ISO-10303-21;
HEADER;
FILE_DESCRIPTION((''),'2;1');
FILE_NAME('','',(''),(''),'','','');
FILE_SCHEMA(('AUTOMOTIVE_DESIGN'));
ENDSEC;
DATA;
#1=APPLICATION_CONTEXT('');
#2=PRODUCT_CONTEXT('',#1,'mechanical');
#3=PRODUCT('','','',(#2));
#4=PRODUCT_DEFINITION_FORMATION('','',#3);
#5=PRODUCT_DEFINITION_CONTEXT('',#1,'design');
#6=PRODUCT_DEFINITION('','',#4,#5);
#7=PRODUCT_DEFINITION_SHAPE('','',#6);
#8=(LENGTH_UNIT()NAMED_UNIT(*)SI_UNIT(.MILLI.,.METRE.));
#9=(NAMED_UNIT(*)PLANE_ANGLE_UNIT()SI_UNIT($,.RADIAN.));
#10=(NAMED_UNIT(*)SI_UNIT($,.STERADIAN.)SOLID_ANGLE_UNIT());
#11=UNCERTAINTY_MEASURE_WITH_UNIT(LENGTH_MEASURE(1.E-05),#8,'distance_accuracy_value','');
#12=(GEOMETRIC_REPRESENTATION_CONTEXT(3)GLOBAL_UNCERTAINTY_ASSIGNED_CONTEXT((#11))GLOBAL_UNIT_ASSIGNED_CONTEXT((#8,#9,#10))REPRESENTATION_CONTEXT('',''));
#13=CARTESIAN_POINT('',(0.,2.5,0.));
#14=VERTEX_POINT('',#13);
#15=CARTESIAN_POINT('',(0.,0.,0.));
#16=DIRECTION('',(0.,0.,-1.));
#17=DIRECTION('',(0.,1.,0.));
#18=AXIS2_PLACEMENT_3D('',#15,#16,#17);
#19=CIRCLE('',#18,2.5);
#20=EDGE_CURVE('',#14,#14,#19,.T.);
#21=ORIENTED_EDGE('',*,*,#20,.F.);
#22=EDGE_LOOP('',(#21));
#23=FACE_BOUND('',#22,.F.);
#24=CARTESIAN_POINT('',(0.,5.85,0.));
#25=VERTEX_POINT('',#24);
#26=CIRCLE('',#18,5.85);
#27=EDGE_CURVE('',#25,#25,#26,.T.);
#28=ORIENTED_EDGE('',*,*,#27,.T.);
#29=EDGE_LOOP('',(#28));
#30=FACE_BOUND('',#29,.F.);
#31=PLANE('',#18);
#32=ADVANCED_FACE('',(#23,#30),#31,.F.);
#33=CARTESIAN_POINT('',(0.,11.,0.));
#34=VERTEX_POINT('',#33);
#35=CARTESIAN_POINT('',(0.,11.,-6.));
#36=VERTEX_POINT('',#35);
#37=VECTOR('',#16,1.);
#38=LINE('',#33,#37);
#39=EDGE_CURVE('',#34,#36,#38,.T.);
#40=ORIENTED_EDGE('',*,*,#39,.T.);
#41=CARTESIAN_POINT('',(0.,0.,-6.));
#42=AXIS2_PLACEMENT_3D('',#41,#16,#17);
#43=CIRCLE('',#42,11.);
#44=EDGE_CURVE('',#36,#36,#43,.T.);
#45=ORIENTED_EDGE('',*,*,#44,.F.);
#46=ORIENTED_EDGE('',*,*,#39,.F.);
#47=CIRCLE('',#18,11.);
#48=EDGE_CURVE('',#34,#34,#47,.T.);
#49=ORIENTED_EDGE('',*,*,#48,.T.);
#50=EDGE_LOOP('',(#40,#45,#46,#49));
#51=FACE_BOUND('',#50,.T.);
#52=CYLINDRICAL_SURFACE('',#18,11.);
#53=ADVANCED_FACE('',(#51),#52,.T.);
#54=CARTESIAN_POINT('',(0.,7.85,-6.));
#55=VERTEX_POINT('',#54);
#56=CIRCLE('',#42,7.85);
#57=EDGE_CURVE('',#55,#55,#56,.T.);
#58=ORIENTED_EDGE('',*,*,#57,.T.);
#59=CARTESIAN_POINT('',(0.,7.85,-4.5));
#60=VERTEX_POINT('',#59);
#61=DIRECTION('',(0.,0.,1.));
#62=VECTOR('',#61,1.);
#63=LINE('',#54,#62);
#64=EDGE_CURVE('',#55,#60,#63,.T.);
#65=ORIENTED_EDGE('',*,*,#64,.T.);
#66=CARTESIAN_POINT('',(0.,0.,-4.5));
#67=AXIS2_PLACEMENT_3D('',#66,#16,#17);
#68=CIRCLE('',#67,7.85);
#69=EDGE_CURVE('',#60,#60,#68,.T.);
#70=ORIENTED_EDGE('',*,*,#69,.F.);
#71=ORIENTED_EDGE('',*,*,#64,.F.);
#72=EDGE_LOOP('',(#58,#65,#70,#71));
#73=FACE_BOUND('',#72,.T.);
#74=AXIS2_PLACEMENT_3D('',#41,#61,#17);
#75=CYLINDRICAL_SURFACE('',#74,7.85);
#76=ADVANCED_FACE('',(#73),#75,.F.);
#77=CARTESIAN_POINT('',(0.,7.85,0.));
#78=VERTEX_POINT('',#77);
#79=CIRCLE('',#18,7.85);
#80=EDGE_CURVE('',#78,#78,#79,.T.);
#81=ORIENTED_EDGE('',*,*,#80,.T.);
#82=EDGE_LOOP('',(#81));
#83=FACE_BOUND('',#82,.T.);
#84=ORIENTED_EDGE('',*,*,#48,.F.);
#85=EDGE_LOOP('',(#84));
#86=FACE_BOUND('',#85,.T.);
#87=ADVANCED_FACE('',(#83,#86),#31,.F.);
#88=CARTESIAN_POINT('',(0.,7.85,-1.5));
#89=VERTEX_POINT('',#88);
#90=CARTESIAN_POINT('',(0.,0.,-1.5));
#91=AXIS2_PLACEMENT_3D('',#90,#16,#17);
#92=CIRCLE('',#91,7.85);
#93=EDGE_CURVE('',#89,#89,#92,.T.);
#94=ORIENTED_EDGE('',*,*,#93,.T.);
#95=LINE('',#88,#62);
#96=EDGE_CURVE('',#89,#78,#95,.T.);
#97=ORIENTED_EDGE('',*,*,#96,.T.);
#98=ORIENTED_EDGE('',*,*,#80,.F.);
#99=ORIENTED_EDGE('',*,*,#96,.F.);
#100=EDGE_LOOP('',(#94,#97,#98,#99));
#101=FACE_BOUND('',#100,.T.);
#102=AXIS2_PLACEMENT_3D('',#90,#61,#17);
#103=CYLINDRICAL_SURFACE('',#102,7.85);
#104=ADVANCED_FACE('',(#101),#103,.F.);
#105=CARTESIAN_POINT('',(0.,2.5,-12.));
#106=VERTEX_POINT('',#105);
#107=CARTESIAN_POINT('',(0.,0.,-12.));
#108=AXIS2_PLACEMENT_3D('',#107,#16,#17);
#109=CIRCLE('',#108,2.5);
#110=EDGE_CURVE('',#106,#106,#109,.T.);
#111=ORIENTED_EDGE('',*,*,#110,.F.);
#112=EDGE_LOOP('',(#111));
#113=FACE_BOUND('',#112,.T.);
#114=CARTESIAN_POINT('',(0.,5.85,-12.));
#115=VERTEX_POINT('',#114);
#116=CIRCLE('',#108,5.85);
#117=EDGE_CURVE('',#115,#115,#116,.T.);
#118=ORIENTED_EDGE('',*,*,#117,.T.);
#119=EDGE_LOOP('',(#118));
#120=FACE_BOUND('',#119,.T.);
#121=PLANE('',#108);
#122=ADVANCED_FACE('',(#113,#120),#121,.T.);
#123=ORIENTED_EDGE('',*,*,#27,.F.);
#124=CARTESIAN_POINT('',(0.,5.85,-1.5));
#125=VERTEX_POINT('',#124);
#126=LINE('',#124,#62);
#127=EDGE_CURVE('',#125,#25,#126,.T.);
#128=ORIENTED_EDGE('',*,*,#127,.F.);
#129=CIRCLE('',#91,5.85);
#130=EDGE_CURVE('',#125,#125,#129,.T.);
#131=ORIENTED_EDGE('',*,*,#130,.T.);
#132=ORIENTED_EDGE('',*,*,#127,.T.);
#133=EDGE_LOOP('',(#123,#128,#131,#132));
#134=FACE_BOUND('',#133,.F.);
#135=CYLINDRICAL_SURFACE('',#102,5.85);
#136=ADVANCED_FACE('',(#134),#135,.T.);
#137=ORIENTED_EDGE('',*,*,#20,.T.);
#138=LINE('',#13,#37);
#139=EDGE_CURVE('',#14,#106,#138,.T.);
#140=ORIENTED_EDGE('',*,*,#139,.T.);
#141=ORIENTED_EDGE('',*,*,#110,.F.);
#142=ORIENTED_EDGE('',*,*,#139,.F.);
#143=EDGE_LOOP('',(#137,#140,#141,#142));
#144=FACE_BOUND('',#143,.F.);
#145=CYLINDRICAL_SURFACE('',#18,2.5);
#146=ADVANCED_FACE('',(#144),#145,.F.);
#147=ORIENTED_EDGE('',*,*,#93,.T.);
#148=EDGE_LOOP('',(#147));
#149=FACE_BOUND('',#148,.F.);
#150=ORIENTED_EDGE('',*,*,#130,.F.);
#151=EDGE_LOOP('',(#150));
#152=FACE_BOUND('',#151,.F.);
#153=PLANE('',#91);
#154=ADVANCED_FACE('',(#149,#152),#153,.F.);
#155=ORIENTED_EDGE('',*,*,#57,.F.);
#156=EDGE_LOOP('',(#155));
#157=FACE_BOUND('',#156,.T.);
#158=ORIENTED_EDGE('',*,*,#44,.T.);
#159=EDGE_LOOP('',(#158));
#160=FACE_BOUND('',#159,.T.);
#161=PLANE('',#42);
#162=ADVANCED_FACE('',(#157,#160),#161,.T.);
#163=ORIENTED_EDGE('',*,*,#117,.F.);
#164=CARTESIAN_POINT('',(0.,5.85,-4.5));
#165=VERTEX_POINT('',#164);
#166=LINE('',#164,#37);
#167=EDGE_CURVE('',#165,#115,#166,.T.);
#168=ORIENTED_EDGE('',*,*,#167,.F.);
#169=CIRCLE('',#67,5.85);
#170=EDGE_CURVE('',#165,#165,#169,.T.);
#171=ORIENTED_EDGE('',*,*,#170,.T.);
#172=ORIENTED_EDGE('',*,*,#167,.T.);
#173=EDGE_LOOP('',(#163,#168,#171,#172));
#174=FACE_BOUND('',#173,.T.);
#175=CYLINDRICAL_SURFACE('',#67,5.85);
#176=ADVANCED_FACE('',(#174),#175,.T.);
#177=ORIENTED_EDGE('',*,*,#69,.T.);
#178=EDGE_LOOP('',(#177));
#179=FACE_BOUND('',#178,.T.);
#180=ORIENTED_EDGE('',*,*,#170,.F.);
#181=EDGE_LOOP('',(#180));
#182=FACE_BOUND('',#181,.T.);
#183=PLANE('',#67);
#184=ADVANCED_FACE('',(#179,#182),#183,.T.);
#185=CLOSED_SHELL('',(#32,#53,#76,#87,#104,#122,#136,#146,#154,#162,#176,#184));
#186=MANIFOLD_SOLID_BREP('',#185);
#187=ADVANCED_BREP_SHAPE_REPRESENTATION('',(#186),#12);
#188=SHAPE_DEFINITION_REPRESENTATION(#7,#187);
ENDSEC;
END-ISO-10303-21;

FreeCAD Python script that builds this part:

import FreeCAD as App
import Part
import Sketcher
Q = App.Units.Quantity


def add_polygon(sketch, points):
    """Adds a closed chain of lines whose ends are joined by coincident constraints."""
    first, n = sketch.GeometryCount, len(points)
    for a, b in zip(points, points[1:] + points[:1]):
        sketch.addGeometry(Part.LineSegment(App.Vector(*a, 0), App.Vector(*b, 0)), False)
    for i in range(n):
        sketch.addConstraint(Sketcher.Constraint("Coincident", first + i, 2, first + (i + 1) % n, 1))

doc = App.newDocument("Part")
body = doc.addObject("PartDesign::Body", "Body")

# Sketch on YZ plane
sketch1 = body.newObject("Sketcher::SketchObject", "Sketch")
sketch1.AttachmentSupport = (doc.getObject("YZ_Plane"), [""])
sketch1.MapMode = "FlatFace"
add_polygon(sketch1, [(7.8, 0), (7.8, -1.5), (5.8, -1.5), (5.8, 0), (2.5, 0), (2.5, -12), (5.8, -12), (5.8, -4.5), (7.8, -4.5), (7.8, -6), (11, -6), (11, 0)])  # lines 0-11
sketch1.addConstraint(Sketcher.Constraint("Vertical", 0))
sketch1.addConstraint(Sketcher.Constraint("Horizontal", 1))
sketch1.addConstraint(Sketcher.Constraint("Vertical", 2))
sketch1.addConstraint(Sketcher.Constraint("Horizontal", 3))
sketch1.addConstraint(Sketcher.Constraint("Vertical", 4))
sketch1.addConstraint(Sketcher.Constraint("Horizontal", 5))
sketch1.addConstraint(Sketcher.Constraint("Vertical", 6))
sketch1.addConstraint(Sketcher.Constraint("Horizontal", 7))
sketch1.addConstraint(Sketcher.Constraint("Vertical", 8))
sketch1.addConstraint(Sketcher.Constraint("Horizontal", 9))
sketch1.addConstraint(Sketcher.Constraint("Vertical", 10))
sketch1.addConstraint(Sketcher.Constraint("Horizontal", 11))
sketch1.addConstraint(Sketcher.Constraint("PointOnObject", 2, 2, -1))
sketch1.addConstraint(Sketcher.Constraint("PointOnObject", 10, 2, -1))
sketch1.addConstraint(Sketcher.Constraint("Vertical", 2, 2, 5, 2))
sketch1.addConstraint(Sketcher.Constraint("Vertical", 0, 2, 7, 2))
sketch1.addConstraint(Sketcher.Constraint("Equal", 2, 8))
sketch1.addConstraint(Sketcher.Constraint("DistanceX", 1, 2, 1, 1, Q("2 mm")))
sketch1.addConstraint(Sketcher.Constraint("DistanceY", 4, 2, 4, 1, Q("12 mm")))
sketch1.addConstraint(Sketcher.Constraint("DistanceY", 10, 1, 10, 2, Q("6 mm")))
sketch1.addConstraint(Sketcher.Constraint("DistanceY", 6, 2, 1, 2, Q("3 mm")))
sketch1.addConstraint(Sketcher.Constraint("DistanceX", -1, 1, 9, 2, Q("11 mm")))
sketch1.addConstraint(Sketcher.Constraint("DistanceX", 3, 2, 3, 1, Q("3.35 mm")))
sketch1.addConstraint(Sketcher.Constraint("DistanceX", 9, 1, 9, 2, Q("3.15 mm")))
revolution = body.newObject("PartDesign::Revolution", "Revolution")
revolution.Profile = sketch1
revolution.ReferenceAxis = (sketch1, ["V_Axis"])
revolution.Angle = 360

doc.recompute()
